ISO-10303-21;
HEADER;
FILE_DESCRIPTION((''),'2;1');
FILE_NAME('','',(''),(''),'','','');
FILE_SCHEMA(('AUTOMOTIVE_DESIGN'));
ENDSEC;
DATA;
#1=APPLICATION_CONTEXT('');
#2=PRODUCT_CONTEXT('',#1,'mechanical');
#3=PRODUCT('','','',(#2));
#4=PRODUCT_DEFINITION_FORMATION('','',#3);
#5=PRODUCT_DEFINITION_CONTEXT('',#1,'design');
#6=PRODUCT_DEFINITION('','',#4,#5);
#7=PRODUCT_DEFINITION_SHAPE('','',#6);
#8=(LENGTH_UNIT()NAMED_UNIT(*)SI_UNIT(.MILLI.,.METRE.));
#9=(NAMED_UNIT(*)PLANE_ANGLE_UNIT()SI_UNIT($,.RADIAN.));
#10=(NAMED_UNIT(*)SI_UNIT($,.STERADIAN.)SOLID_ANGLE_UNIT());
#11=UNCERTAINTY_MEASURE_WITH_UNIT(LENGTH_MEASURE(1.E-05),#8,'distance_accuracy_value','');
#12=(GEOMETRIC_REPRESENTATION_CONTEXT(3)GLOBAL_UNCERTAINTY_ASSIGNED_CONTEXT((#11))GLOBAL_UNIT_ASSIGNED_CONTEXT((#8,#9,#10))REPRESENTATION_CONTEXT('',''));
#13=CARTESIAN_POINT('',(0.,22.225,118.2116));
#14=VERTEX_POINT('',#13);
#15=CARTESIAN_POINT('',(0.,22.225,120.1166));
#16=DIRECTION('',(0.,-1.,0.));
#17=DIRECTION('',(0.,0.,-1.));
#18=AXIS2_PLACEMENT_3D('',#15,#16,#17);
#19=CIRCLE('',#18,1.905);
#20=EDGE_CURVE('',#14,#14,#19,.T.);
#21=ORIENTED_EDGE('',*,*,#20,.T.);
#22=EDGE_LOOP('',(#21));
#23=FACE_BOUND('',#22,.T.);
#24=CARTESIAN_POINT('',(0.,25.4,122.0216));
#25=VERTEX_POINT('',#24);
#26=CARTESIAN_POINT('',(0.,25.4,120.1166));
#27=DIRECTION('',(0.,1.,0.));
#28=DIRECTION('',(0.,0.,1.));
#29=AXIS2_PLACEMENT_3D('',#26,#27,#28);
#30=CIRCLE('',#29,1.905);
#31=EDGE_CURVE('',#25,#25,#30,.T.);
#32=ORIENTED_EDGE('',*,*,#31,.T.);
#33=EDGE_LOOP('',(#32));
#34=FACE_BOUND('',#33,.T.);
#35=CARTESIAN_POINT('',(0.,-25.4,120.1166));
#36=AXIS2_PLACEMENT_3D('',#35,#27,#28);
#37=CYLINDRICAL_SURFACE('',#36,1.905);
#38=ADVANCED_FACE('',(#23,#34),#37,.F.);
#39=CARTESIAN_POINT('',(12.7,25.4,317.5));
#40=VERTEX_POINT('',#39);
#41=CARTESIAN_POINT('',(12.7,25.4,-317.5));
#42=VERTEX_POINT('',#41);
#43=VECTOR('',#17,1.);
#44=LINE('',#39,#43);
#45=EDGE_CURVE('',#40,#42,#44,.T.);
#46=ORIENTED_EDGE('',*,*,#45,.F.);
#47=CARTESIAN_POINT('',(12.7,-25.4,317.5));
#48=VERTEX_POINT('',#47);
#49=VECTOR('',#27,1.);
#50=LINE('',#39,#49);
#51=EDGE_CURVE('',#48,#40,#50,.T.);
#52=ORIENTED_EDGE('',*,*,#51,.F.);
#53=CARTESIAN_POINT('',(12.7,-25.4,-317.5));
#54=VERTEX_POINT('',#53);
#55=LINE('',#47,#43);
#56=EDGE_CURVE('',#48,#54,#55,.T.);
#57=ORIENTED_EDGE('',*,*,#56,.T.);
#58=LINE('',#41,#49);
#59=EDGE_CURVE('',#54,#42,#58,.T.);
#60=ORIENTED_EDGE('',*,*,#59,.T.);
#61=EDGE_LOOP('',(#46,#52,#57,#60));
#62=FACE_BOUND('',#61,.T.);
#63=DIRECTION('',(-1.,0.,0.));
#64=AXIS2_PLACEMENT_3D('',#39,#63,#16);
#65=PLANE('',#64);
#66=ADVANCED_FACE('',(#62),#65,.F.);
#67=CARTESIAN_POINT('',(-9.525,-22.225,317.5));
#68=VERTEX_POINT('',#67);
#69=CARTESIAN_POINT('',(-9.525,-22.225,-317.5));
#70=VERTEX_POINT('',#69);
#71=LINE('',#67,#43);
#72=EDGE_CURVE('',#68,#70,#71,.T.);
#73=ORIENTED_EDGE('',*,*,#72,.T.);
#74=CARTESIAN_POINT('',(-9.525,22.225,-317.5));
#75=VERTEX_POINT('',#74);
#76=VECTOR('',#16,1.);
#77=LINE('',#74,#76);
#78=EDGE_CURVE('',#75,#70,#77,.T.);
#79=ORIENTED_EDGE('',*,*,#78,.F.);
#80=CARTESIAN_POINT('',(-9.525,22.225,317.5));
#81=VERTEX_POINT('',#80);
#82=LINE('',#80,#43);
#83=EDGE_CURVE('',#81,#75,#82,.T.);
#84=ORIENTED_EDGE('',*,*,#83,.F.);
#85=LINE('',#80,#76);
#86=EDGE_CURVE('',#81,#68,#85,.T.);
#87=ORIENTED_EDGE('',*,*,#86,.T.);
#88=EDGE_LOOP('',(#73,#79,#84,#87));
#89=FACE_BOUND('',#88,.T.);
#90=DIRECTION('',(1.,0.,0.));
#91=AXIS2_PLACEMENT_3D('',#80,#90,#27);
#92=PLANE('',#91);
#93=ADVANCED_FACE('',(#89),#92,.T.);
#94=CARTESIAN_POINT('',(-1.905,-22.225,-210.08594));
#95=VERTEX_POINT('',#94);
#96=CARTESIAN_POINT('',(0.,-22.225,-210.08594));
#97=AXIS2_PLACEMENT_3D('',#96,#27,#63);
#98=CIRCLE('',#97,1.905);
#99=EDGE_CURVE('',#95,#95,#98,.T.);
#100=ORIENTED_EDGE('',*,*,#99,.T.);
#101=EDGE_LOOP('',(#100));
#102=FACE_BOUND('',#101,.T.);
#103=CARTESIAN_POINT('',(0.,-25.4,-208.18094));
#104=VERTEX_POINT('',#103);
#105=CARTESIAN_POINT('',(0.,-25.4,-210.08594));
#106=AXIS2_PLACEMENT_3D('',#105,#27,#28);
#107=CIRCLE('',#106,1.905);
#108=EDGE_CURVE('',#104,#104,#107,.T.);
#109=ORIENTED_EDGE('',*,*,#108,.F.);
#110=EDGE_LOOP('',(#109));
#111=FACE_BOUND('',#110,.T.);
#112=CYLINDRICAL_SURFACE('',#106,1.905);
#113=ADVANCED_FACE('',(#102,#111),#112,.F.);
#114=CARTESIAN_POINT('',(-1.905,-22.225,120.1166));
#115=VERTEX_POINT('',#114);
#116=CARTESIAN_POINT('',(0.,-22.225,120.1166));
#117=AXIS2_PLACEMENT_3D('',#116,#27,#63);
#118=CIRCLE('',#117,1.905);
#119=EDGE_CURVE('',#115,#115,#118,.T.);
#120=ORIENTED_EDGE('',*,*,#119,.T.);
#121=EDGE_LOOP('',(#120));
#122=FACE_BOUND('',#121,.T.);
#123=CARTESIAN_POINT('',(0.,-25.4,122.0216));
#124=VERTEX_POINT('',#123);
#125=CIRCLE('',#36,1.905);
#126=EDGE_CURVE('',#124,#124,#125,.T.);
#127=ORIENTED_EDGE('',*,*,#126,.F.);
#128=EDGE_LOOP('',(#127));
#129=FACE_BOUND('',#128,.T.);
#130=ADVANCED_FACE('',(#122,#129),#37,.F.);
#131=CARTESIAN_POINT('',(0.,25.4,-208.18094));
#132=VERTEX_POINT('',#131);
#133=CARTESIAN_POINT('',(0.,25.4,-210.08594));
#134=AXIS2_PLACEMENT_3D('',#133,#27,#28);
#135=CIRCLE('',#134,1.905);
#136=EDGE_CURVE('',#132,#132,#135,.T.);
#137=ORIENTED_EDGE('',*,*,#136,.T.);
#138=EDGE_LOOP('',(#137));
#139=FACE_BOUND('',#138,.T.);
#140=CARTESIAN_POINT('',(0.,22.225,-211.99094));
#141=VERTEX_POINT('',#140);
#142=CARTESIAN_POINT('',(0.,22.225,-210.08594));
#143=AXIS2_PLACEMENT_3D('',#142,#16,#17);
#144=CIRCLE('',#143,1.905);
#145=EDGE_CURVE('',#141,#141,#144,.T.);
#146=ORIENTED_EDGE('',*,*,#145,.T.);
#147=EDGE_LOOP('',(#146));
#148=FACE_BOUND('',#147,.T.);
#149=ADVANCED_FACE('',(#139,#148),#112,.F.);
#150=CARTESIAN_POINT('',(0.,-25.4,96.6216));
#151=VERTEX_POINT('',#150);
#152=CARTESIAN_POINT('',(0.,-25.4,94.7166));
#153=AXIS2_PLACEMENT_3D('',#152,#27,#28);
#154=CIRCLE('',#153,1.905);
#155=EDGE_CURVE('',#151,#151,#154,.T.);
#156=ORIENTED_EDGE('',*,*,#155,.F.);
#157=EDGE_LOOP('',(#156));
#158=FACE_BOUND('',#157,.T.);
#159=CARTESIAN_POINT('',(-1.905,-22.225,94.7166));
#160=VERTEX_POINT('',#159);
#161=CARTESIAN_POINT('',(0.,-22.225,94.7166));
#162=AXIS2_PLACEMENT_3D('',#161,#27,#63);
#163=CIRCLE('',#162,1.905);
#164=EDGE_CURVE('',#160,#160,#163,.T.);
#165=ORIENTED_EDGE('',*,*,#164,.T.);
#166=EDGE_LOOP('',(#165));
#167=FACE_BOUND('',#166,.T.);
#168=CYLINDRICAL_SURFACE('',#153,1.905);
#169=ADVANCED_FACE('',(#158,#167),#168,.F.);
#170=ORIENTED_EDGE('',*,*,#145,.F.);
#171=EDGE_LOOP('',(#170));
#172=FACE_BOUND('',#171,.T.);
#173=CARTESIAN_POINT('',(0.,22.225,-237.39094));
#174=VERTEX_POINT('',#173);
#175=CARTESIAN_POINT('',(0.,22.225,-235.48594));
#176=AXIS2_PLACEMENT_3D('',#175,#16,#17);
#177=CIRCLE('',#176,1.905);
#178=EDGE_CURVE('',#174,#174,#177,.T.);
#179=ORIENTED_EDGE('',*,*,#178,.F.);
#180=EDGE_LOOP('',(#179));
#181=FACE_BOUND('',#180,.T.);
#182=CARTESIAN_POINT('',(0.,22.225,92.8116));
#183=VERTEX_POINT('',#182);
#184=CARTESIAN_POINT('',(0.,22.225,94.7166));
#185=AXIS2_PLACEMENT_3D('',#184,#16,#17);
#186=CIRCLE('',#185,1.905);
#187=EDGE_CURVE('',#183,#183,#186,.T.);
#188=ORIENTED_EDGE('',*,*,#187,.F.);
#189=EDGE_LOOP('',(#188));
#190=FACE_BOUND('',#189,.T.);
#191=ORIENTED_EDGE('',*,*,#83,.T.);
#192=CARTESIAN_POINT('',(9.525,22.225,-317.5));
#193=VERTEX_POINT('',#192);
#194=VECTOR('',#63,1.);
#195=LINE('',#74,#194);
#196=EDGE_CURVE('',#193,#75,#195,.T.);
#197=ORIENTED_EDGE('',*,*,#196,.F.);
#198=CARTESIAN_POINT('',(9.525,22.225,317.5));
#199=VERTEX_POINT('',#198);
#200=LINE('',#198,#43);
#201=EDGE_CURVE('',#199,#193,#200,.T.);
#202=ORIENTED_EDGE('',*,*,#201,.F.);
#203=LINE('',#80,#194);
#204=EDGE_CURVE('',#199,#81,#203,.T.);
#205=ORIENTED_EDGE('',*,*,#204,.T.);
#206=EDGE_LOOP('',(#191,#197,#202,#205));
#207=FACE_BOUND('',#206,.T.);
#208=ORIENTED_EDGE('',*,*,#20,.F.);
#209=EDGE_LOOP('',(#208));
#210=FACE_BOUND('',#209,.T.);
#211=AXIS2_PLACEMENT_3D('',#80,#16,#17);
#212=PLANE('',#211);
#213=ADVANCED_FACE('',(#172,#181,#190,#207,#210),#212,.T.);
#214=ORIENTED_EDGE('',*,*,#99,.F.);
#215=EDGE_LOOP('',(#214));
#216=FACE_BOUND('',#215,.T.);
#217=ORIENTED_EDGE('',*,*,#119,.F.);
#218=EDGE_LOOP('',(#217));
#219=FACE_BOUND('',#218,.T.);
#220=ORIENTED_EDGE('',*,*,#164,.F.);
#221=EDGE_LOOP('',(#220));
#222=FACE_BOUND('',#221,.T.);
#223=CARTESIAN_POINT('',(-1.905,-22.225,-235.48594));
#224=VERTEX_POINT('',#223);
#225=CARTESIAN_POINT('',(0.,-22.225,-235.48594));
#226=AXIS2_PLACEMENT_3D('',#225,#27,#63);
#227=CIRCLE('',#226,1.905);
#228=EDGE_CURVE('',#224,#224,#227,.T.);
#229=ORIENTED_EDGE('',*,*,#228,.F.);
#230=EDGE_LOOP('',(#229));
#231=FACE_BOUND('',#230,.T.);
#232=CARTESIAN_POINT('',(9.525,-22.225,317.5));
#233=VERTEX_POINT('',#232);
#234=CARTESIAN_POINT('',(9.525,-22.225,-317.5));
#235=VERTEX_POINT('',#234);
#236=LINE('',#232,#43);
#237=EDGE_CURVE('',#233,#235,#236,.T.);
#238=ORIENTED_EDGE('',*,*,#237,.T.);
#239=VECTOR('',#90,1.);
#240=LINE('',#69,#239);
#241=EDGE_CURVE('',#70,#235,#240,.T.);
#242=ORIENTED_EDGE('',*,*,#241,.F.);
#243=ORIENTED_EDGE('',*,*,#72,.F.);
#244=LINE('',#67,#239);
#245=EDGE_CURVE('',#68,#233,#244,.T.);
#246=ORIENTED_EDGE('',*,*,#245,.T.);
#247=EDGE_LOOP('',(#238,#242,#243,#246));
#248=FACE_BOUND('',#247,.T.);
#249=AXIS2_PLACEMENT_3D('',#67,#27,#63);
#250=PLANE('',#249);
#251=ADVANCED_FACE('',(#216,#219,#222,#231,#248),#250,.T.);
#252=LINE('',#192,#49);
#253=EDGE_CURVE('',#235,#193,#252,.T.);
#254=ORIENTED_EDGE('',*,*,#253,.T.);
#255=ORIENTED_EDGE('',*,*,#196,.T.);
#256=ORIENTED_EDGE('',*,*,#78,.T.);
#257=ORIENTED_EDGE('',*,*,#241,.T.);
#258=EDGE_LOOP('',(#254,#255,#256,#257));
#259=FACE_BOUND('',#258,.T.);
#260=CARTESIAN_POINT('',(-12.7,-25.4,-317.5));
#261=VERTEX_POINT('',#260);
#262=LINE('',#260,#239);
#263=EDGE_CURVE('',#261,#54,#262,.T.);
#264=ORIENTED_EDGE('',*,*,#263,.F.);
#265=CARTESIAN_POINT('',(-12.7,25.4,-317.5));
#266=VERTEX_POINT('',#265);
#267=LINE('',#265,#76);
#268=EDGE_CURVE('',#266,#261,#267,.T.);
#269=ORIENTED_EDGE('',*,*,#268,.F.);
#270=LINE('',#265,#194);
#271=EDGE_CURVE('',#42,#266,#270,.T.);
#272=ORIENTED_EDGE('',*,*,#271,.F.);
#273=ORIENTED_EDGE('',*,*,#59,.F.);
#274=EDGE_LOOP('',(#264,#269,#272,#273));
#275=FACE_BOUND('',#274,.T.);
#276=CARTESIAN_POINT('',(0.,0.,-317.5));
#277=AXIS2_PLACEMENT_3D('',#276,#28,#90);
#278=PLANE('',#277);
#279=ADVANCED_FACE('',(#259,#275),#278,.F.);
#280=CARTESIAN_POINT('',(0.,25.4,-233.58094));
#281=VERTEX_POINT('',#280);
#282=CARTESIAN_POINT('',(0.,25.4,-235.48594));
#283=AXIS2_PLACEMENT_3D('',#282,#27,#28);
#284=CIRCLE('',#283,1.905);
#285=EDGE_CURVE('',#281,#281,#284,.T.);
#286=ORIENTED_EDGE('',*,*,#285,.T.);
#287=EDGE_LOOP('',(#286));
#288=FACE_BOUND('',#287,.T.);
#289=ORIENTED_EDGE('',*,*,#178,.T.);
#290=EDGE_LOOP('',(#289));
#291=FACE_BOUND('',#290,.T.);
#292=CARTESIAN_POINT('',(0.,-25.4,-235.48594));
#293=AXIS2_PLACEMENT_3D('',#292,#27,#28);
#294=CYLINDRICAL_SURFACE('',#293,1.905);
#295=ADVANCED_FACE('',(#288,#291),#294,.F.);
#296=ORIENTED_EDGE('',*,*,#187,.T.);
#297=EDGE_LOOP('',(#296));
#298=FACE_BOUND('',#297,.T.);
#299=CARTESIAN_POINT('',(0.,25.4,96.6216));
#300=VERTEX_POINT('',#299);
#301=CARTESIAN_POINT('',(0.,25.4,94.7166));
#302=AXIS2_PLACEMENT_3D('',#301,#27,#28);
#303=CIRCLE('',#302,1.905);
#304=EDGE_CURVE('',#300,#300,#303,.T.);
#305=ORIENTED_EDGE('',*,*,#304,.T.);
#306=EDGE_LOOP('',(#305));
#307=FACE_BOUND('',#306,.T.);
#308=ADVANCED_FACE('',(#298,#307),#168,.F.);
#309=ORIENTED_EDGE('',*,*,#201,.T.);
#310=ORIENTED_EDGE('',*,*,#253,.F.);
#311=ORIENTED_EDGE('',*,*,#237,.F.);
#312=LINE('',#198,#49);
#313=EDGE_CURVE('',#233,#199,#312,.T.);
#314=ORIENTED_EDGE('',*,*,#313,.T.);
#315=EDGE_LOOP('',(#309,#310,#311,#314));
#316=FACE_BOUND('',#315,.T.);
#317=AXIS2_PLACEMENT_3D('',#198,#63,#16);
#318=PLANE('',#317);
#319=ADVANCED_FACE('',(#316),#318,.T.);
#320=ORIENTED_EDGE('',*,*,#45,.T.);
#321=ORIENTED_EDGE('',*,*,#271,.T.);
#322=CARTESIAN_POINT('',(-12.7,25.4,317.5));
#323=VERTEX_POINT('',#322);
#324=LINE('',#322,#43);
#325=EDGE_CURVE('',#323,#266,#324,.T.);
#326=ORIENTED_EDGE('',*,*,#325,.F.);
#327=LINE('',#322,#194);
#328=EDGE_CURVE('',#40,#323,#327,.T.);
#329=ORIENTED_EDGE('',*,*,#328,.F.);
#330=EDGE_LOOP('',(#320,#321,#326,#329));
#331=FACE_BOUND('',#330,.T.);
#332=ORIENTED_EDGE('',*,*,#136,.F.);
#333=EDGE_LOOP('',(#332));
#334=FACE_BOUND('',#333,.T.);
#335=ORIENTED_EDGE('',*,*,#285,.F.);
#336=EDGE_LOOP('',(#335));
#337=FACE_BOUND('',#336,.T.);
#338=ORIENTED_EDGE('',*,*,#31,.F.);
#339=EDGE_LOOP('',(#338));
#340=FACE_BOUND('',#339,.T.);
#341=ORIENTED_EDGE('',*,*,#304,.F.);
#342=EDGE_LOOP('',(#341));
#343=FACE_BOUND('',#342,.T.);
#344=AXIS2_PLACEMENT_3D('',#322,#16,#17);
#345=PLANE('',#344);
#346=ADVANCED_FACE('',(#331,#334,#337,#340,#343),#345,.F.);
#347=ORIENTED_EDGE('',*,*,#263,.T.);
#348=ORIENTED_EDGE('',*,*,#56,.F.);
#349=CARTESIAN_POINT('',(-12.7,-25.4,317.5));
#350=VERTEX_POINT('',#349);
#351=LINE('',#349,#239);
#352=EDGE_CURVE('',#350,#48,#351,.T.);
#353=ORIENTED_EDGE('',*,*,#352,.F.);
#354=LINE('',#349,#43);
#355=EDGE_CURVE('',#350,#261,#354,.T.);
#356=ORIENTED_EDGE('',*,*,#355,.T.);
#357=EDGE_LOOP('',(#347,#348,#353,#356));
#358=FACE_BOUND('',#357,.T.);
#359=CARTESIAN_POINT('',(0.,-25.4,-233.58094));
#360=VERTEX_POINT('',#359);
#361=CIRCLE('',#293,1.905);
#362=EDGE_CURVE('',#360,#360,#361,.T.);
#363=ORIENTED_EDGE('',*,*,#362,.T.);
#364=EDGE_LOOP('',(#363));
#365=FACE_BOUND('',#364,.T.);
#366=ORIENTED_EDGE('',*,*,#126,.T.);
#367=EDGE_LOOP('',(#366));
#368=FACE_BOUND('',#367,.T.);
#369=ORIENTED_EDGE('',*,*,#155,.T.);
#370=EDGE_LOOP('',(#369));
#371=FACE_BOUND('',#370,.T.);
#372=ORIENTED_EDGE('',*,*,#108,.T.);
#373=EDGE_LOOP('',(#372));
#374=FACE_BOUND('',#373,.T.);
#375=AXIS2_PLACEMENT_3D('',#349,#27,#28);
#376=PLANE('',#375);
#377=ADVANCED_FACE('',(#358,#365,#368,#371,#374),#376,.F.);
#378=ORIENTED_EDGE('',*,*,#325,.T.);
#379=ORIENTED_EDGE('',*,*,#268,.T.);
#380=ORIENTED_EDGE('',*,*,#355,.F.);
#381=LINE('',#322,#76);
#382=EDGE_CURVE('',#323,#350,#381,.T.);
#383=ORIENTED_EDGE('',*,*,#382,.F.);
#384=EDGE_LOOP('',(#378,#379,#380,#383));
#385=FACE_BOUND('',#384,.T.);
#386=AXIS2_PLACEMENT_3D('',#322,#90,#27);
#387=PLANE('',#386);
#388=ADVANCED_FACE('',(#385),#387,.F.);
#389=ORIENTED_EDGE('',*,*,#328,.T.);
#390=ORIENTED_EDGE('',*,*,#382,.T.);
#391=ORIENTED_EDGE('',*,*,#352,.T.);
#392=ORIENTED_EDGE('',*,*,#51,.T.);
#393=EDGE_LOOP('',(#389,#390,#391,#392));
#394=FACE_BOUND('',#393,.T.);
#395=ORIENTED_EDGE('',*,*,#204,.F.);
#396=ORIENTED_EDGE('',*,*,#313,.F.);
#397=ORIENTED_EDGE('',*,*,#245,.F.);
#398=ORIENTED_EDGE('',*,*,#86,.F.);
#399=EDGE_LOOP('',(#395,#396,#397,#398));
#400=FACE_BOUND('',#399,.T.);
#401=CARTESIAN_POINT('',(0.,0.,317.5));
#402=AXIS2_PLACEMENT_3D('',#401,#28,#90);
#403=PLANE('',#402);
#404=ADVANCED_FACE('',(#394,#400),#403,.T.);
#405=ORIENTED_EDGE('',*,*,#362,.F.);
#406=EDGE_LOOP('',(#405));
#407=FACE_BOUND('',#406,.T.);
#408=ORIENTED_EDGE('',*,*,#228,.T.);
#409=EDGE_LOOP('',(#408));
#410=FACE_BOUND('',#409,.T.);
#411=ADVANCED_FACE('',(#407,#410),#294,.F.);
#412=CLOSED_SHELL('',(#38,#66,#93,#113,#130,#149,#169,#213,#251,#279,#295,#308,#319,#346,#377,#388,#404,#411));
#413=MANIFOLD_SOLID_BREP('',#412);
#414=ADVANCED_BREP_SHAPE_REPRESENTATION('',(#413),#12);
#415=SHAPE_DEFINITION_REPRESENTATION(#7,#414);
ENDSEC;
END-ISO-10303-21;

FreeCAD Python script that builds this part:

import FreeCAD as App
import Part
import Sketcher
Q = App.Units.Quantity

doc = App.newDocument("Part")
body = doc.addObject("PartDesign::Body", "Body")

sketch1 = doc.addObject("Sketcher::SketchObject", "Sketch")
body.addObject(sketch1)
sketch1.AttachmentSupport = (doc.XY_Plane, [""])
sketch1.MapMode = "FlatFace"
sketch1.addGeometry([
    Part.LineSegment(App.Vector(-13, 25, 0), App.Vector(-13, -25, 0)),
    Part.LineSegment(App.Vector(-13, -25, 0), App.Vector(13, -25, 0)),
    Part.LineSegment(App.Vector(13, -25, 0), App.Vector(13, 25, 0)),
    Part.LineSegment(App.Vector(13, 25, 0), App.Vector(-13, 25, 0)),
    Part.LineSegment(App.Vector(10, -22, 0), App.Vector(-10, -22, 0)),
    Part.LineSegment(App.Vector(-10, -22, 0), App.Vector(-10, 22, 0)),
    Part.LineSegment(App.Vector(-10, 22, 0), App.Vector(10, 22, 0)),
    Part.LineSegment(App.Vector(10, 22, 0), App.Vector(10, -22, 0)),
], False)
sketch1.addConstraint([
    Sketcher.Constraint("Coincident", 0, 2, 1, 1),
    Sketcher.Constraint("Coincident", 1, 2, 2, 1),
    Sketcher.Constraint("Coincident", 2, 2, 3, 1),
    Sketcher.Constraint("Coincident", 3, 2, 0, 1),
    Sketcher.Constraint("Coincident", 4, 2, 5, 1),
    Sketcher.Constraint("Coincident", 5, 2, 6, 1),
    Sketcher.Constraint("Coincident", 6, 2, 7, 1),
    Sketcher.Constraint("Coincident", 7, 2, 4, 1),
    Sketcher.Constraint("Vertical", 0),
    Sketcher.Constraint("Horizontal", 1),
    Sketcher.Constraint("Vertical", 2),
    Sketcher.Constraint("Horizontal", 3),
    Sketcher.Constraint("Horizontal", 4),
    Sketcher.Constraint("Vertical", 5),
    Sketcher.Constraint("Horizontal", 6),
    Sketcher.Constraint("Vertical", 7),
    Sketcher.Constraint("Symmetric", 0, 2, 2, 2, -1, 1),
    Sketcher.Constraint("Symmetric", 4, 2, 6, 2, -1, 1),
    Sketcher.Constraint("DistanceX", 1, 1, 1, 2, Q("1 in")),
    Sketcher.Constraint("DistanceY", 0, 2, 0, 1, Q("2 in")),
    Sketcher.Constraint("DistanceX", 4, 2, 4, 1, Q("0.75 in")),
    Sketcher.Constraint("DistanceY", 5, 1, 5, 2, Q("1.75 in")),
])
pad1 = doc.addObject("PartDesign::Pad", "Pad")
body.addObject(pad1)
pad1.Profile = sketch1
pad1.Length = Q("25 in")
pad1.Midplane = True

sketch2 = doc.addObject("Sketcher::SketchObject", "Sketch001")
body.addObject(sketch2)
sketch2.AttachmentSupport = (doc.XZ_Plane, [""])
sketch2.MapMode = "FlatFace"
sketch2.AttachmentOffset = App.Placement(App.Vector(0, 0, -1 * 25.4), App.Rotation())
sketch2.addGeometry([
    Part.Circle(App.Vector(0, 120.1, 0), App.Vector(0, 0, 1), 1.9),
    Part.Circle(App.Vector(0, 94.7, 0), App.Vector(0, 0, 1), 1.9),
    Part.Circle(App.Vector(0, -235.5, 0), App.Vector(0, 0, 1), 1.9),
    Part.Circle(App.Vector(0, -210.1, 0), App.Vector(0, 0, 1), 1.9),
], False)
sketch2.addConstraint([
    Sketcher.Constraint("Equal", 0, 1),
    Sketcher.Constraint("Equal", 1, 2),
    Sketcher.Constraint("Equal", 2, 3),
    Sketcher.Constraint("PointOnObject", 0, 3, -2),
    Sketcher.Constraint("PointOnObject", 1, 3, -2),
    Sketcher.Constraint("PointOnObject", 2, 3, -2),
    Sketcher.Constraint("PointOnObject", 3, 3, -2),
    Sketcher.Constraint("Diameter", 0, Q("0.15 in")),
    Sketcher.Constraint("DistanceY", 1, 3, 0, 3, Q("1 in")),
    Sketcher.Constraint("DistanceY", 2, 3, 3, 3, Q("1 in")),
    Sketcher.Constraint("DistanceY", -1, 1, 0, 3, Q("4.729 in")),
    Sketcher.Constraint("DistanceY", 2, 3, -1, 1, Q("9.2711 in")),
])
pocket1 = doc.addObject("PartDesign::Pocket", "Pocket")
body.addObject(pocket1)
pocket1.Profile = sketch2
pocket1.Type = "ThroughAll"
pocket1.Reversed = True

doc.recompute()
